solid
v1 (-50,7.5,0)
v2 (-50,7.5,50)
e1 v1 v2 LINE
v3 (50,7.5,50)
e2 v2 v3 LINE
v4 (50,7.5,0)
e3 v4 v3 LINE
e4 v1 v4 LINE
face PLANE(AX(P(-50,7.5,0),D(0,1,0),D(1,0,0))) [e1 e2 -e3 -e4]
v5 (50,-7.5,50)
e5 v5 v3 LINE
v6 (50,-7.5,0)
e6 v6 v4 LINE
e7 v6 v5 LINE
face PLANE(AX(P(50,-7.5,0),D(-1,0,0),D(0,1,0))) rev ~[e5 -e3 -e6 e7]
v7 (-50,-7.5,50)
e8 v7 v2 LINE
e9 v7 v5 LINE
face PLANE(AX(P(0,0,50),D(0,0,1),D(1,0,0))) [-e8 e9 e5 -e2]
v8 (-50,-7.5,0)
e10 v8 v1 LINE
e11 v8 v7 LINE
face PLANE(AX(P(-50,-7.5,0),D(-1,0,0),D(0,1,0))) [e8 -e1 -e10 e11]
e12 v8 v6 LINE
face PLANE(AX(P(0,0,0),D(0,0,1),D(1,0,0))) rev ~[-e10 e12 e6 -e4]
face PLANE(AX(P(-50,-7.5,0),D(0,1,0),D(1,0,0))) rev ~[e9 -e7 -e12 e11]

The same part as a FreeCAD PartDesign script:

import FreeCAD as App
import Part
import Sketcher

doc = App.newDocument("Part")
body = doc.addObject("PartDesign::Body", "Body")

# Sketch on XY plane
sketch1 = body.newObject("Sketcher::SketchObject", "Sketch")
sketch1.AttachmentSupport = (doc.getObject("XY_Plane"), [""])
sketch1.MapMode = "FlatFace"
sketch1.addGeometry(Part.LineSegment(App.Vector(-50, 8, 0), App.Vector(-50, -8, 0)), False)
sketch1.addGeometry(Part.LineSegment(App.Vector(-50, -8, 0), App.Vector(50, -8, 0)), False)
sketch1.addGeometry(Part.LineSegment(App.Vector(50, -8, 0), App.Vector(50, 8, 0)), False)
sketch1.addGeometry(Part.LineSegment(App.Vector(50, 8, 0), App.Vector(-50, 8, 0)), False)
sketch1.addConstraint(Sketcher.Constraint("Coincident", 0, 2, 1, 1))
sketch1.addConstraint(Sketcher.Constraint("Coincident", 1, 2, 2, 1))
sketch1.addConstraint(Sketcher.Constraint("Coincident", 2, 2, 3, 1))
sketch1.addConstraint(Sketcher.Constraint("Coincident", 3, 2, 0, 1))
sketch1.addConstraint(Sketcher.Constraint("Vertical", 0))
sketch1.addConstraint(Sketcher.Constraint("Horizontal", 1))
sketch1.addConstraint(Sketcher.Constraint("Vertical", 2))
sketch1.addConstraint(Sketcher.Constraint("Horizontal", 3))
sketch1.addConstraint(Sketcher.Constraint("Symmetric", 0, 2, 2, 2, -1, 1))
sketch1.addConstraint(Sketcher.Constraint("DistanceX", 1, 1, 1, 2, 100.0))
sketch1.addConstraint(Sketcher.Constraint("DistanceY", 0, 2, 0, 1, 15.0))
pad1 = body.newObject("PartDesign::Pad", "Pad")
pad1.Profile = sketch1
pad1.Length = 50

doc.recompute()
